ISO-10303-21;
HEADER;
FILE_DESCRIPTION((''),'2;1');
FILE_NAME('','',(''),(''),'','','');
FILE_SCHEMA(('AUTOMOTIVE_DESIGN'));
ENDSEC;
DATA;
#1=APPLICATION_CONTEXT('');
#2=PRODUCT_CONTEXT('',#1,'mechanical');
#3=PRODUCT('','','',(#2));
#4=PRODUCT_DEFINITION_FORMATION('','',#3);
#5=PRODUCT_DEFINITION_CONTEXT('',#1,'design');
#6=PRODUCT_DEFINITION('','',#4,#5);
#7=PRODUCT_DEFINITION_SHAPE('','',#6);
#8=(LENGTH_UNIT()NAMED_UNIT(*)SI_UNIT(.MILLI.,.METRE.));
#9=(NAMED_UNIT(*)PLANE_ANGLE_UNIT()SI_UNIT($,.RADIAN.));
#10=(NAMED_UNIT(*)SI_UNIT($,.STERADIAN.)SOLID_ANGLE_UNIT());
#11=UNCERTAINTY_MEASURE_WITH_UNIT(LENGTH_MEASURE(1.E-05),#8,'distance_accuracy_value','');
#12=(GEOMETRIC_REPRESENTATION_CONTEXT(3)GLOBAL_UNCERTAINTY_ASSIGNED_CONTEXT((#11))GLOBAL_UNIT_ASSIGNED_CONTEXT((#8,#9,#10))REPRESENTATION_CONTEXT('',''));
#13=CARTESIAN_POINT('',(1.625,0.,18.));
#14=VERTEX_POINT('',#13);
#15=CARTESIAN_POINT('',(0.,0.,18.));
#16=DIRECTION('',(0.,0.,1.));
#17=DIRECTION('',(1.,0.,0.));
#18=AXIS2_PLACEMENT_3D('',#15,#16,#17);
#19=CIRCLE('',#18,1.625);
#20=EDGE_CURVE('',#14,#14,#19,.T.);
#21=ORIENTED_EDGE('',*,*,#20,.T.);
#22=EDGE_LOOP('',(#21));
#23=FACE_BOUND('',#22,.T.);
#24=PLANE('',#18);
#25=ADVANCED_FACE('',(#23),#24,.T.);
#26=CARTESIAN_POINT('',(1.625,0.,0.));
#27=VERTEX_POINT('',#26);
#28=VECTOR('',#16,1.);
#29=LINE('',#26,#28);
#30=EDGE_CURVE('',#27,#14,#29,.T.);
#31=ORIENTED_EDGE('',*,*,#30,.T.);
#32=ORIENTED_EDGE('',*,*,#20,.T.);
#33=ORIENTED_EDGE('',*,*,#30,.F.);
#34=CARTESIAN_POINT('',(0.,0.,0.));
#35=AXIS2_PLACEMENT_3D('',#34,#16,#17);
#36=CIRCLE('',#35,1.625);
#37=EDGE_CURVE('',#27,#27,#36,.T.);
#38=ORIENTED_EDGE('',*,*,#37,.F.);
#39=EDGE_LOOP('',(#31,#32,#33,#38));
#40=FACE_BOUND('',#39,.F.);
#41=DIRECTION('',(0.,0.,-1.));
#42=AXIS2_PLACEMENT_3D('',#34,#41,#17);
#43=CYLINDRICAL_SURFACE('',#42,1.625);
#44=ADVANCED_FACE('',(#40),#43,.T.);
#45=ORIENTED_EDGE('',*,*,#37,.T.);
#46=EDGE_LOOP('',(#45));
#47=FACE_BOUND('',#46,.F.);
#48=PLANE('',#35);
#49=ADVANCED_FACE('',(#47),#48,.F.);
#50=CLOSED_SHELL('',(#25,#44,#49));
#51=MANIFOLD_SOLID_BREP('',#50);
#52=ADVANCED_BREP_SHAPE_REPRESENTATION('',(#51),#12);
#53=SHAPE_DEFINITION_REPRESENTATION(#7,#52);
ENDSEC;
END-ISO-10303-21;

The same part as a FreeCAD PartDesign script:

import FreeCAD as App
import Part
import Sketcher

V = App.Vector
Q = App.Units.Quantity

doc = App.newDocument("Part")
params = doc.addObject("Spreadsheet::Sheet", "Params")
for row, (alias, value) in enumerate([
    ("sketch1_diameter", "3.25 mm"),
    ("pad1_length", "18 mm"),
], start=1):
    params.set(f"A{row}", alias)
    params.set(f"B{row}", "=" + value)
    params.setAlias(f"B{row}", alias)

body = doc.addObject("PartDesign::Body", "Body")

sketch1 = body.newObject("Sketcher::SketchObject", "Sketch")
sketch1.AttachmentSupport = (doc.getObject("XY_Plane"), [""])
sketch1.MapMode = "FlatFace"
sketch1.addGeometry(Part.Circle(V(0, 0, 0), V(0, 0, 1), 1.6), False)
sketch1.addConstraint([
    Sketcher.Constraint("Coincident", 0, 3, -1, 1),
    Sketcher.Constraint("Diameter", 0, Q("3.25 mm")),
])
sketch1.setExpression("Constraints[1]", "Params.sketch1_diameter")
pad1 = body.newObject("PartDesign::Pad", "Pad")
pad1.Profile = sketch1
pad1.setExpression("Length", "Params.pad1_length")

doc.recompute()
